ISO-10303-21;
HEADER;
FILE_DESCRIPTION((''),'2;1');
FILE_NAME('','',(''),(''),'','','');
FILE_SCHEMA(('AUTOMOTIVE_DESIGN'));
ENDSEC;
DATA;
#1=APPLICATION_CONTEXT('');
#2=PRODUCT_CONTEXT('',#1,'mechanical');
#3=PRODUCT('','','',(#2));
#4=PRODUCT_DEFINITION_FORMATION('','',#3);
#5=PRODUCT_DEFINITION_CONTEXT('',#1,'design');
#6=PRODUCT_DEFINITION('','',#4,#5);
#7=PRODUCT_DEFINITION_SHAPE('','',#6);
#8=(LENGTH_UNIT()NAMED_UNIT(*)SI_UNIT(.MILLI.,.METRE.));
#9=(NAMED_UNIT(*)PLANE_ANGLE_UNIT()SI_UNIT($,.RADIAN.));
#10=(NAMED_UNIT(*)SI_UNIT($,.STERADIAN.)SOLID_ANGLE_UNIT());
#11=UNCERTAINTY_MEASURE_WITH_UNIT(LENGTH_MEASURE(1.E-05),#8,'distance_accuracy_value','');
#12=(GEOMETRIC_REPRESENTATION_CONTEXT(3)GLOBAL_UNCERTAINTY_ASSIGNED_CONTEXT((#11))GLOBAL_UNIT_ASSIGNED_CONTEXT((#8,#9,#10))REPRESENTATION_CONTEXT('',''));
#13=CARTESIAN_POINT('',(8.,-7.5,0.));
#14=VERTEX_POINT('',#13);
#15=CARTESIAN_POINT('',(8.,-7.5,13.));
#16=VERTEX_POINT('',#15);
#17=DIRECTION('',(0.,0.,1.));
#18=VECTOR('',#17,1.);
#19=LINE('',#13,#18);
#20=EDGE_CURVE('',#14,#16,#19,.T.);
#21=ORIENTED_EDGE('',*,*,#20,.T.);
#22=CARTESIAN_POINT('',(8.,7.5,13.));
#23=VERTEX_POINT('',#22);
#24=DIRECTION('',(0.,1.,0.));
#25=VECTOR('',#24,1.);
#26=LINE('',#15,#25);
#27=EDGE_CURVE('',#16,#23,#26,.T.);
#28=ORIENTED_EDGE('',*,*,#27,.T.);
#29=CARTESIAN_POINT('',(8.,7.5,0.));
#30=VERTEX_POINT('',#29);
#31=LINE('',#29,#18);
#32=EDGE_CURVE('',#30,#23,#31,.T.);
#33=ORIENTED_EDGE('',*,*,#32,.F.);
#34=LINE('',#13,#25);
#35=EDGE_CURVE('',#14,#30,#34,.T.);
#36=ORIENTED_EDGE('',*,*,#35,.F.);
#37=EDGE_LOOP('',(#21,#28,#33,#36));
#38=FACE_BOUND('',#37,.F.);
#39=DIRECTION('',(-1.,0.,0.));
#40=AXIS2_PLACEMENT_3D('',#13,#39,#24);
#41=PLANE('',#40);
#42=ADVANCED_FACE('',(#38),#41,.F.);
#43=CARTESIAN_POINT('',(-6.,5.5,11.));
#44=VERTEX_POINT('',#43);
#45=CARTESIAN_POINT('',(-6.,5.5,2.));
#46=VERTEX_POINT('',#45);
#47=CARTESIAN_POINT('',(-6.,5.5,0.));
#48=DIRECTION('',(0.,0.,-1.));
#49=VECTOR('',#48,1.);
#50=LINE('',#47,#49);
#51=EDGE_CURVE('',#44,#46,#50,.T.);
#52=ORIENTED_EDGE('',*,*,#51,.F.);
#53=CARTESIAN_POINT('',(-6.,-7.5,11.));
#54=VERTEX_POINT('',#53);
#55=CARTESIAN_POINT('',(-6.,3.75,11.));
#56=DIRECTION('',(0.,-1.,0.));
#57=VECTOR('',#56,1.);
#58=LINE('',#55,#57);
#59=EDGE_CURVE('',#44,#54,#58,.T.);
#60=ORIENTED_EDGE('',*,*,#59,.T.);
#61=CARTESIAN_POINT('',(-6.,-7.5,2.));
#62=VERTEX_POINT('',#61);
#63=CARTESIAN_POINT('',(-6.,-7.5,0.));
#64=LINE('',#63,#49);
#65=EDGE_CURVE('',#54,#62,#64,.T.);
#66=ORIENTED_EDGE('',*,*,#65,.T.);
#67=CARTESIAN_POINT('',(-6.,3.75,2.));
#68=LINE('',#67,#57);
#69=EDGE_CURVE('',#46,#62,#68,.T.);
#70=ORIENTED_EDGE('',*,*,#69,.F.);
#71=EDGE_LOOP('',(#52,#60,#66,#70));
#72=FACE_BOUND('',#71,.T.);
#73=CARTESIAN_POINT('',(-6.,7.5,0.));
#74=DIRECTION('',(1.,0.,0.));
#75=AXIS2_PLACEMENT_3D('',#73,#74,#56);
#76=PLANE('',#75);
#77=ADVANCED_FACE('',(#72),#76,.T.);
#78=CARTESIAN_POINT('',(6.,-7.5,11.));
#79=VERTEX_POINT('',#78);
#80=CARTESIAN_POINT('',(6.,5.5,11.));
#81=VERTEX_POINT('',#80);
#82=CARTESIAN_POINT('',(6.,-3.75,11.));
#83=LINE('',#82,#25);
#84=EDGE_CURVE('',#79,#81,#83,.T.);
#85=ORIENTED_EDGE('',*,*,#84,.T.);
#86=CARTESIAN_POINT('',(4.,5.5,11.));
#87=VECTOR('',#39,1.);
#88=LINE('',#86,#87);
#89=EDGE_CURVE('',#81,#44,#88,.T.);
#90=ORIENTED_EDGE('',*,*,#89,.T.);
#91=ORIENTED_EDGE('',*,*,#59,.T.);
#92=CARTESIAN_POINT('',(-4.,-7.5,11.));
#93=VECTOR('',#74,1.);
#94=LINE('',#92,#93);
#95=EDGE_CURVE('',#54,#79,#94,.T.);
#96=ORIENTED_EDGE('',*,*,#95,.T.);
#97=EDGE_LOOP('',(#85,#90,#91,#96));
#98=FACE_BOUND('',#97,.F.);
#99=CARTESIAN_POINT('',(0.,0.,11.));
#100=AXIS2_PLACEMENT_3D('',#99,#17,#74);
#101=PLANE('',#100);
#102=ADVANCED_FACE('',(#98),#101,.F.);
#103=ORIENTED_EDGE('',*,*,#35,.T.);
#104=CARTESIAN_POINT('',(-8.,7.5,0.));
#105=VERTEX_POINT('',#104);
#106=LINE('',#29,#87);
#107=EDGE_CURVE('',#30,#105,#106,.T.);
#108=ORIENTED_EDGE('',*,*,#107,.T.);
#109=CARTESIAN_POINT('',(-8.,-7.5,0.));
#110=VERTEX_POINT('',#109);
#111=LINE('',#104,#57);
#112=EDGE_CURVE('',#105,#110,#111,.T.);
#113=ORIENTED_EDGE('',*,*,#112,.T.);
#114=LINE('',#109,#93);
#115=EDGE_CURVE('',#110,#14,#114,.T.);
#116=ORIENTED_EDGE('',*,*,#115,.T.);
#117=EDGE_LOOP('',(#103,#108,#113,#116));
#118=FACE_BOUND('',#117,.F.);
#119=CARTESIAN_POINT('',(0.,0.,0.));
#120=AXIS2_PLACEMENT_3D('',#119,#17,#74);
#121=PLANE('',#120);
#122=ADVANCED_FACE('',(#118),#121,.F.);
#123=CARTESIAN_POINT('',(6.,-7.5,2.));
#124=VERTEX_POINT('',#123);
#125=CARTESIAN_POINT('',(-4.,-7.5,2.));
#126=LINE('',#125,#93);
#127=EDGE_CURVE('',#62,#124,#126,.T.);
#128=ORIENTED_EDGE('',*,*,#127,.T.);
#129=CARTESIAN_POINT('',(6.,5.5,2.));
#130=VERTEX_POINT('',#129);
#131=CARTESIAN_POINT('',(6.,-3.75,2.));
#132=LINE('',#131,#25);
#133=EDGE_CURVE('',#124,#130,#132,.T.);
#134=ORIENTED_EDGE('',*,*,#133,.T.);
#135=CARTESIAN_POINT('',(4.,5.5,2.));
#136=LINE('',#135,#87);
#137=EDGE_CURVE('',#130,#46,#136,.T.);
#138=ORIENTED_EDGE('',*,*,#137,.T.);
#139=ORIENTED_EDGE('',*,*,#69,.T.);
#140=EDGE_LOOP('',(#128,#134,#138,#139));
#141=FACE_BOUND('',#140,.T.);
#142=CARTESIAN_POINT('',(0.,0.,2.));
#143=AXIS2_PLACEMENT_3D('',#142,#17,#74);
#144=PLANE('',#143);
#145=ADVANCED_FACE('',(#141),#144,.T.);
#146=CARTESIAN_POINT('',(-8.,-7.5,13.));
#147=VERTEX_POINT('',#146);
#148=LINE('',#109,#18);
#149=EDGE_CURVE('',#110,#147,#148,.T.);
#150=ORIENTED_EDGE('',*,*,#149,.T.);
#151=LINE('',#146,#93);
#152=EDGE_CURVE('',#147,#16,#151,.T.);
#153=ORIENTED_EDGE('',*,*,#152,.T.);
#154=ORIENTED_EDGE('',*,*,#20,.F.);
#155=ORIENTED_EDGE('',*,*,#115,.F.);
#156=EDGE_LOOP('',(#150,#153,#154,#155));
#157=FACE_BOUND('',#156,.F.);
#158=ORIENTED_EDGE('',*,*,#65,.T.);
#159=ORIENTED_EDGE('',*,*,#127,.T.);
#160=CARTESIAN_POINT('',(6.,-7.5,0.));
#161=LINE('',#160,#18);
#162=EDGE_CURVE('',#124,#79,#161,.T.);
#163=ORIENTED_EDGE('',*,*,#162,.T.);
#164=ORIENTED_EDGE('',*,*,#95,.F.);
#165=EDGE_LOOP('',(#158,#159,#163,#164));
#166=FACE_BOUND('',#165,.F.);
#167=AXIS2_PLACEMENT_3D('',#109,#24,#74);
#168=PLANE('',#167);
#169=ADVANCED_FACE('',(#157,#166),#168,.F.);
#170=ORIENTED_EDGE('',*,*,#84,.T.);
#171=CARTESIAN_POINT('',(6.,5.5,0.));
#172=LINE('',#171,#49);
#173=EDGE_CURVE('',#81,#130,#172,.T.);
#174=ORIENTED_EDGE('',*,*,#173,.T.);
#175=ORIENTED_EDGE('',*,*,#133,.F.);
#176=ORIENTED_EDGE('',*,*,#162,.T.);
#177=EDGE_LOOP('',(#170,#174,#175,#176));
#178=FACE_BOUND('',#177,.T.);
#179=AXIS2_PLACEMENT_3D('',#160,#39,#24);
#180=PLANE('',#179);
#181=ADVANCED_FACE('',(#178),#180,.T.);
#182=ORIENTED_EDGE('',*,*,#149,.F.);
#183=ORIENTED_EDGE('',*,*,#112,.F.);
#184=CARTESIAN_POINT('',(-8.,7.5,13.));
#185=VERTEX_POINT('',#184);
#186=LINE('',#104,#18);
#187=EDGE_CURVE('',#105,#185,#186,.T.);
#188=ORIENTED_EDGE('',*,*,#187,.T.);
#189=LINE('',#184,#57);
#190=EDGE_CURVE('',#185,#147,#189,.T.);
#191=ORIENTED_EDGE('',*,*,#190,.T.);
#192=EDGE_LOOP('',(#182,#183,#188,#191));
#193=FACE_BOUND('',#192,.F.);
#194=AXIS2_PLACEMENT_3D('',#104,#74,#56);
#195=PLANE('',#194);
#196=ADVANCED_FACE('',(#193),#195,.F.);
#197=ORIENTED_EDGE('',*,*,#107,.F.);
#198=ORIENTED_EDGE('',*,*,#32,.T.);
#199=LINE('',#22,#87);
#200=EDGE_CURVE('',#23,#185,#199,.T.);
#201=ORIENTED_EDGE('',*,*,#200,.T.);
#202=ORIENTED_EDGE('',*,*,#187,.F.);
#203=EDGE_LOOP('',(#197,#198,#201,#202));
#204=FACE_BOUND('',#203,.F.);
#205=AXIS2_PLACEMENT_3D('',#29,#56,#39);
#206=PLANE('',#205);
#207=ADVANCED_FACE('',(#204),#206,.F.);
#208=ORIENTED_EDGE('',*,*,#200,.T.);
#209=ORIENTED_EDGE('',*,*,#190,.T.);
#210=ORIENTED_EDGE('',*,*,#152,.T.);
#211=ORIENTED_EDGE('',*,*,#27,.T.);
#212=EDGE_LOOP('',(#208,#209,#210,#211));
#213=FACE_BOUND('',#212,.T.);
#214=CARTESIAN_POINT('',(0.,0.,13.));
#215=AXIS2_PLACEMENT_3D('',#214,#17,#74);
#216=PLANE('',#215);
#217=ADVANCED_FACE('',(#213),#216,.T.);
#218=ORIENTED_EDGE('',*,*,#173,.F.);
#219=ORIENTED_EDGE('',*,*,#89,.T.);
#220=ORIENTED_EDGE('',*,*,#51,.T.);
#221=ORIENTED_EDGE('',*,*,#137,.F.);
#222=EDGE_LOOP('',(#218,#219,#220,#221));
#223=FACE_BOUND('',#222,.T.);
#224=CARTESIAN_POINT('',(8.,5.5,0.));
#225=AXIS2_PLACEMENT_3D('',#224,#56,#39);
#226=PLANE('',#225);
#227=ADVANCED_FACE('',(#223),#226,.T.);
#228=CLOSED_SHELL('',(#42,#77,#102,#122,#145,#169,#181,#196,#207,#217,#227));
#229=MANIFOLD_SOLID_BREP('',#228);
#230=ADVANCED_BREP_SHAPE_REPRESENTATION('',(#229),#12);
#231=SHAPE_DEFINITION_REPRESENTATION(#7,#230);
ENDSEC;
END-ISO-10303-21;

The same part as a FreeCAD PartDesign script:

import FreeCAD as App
import Part
import Sketcher
from FreeCAD import Vector
Q = App.Units.Quantity


def faces_at(feature, points):
    """Names of the faces that lie closest to the given points."""
    faces = feature.Shape.Faces
    near = lambda p: min(range(len(faces)), key=lambda i: faces[i].distToShape(Part.Vertex(*p))[0])
    return sorted({f"Face{near(p) + 1}" for p in points})

doc = App.newDocument("Part")
body = doc.addObject("PartDesign::Body", "Body")

# Sketch on XY plane
sketch1 = body.newObject("Sketcher::SketchObject", "Sketch")
sketch1.AttachmentSupport = (doc.getObject("XY_Plane"), [""])
sketch1.MapMode = "FlatFace"
sketch1.addGeometry([
    Part.LineSegment(Vector(-8, 8, 0), Vector(-8, -8, 0)),
    Part.LineSegment(Vector(-8, -8, 0), Vector(8, -8, 0)),
    Part.LineSegment(Vector(8, -8, 0), Vector(8, 8, 0)),
    Part.LineSegment(Vector(8, 8, 0), Vector(-8, 8, 0)),
], False)
sketch1.addConstraint([
    Sketcher.Constraint("Coincident", 0, 2, 1, 1),
    Sketcher.Constraint("Coincident", 1, 2, 2, 1),
    Sketcher.Constraint("Coincident", 2, 2, 3, 1),
    Sketcher.Constraint("Coincident", 3, 2, 0, 1),
    Sketcher.Constraint("Vertical", 0),
    Sketcher.Constraint("Horizontal", 1),
    Sketcher.Constraint("Vertical", 2),
    Sketcher.Constraint("Horizontal", 3),
    Sketcher.Constraint("Symmetric", 0, 2, 2, 2, -1, 1),
    Sketcher.Constraint("DistanceX", 1, 1, 1, 2, Q("16 mm")),
    Sketcher.Constraint("DistanceY", 0, 2, 0, 1, Q("15 mm")),
])
pad1 = body.newObject("PartDesign::Pad", "Pad")
pad1.Profile = sketch1
pad1.Length = 13
doc.recompute()

thickness = body.newObject("PartDesign::Thickness", "Thickness")
thickness.Base = (pad1, faces_at(pad1, [(-2.667, -7.5, 4.333)]))
thickness.Value = 2
thickness.Reversed = True
thickness.Join = "Intersection"

doc.recompute()
